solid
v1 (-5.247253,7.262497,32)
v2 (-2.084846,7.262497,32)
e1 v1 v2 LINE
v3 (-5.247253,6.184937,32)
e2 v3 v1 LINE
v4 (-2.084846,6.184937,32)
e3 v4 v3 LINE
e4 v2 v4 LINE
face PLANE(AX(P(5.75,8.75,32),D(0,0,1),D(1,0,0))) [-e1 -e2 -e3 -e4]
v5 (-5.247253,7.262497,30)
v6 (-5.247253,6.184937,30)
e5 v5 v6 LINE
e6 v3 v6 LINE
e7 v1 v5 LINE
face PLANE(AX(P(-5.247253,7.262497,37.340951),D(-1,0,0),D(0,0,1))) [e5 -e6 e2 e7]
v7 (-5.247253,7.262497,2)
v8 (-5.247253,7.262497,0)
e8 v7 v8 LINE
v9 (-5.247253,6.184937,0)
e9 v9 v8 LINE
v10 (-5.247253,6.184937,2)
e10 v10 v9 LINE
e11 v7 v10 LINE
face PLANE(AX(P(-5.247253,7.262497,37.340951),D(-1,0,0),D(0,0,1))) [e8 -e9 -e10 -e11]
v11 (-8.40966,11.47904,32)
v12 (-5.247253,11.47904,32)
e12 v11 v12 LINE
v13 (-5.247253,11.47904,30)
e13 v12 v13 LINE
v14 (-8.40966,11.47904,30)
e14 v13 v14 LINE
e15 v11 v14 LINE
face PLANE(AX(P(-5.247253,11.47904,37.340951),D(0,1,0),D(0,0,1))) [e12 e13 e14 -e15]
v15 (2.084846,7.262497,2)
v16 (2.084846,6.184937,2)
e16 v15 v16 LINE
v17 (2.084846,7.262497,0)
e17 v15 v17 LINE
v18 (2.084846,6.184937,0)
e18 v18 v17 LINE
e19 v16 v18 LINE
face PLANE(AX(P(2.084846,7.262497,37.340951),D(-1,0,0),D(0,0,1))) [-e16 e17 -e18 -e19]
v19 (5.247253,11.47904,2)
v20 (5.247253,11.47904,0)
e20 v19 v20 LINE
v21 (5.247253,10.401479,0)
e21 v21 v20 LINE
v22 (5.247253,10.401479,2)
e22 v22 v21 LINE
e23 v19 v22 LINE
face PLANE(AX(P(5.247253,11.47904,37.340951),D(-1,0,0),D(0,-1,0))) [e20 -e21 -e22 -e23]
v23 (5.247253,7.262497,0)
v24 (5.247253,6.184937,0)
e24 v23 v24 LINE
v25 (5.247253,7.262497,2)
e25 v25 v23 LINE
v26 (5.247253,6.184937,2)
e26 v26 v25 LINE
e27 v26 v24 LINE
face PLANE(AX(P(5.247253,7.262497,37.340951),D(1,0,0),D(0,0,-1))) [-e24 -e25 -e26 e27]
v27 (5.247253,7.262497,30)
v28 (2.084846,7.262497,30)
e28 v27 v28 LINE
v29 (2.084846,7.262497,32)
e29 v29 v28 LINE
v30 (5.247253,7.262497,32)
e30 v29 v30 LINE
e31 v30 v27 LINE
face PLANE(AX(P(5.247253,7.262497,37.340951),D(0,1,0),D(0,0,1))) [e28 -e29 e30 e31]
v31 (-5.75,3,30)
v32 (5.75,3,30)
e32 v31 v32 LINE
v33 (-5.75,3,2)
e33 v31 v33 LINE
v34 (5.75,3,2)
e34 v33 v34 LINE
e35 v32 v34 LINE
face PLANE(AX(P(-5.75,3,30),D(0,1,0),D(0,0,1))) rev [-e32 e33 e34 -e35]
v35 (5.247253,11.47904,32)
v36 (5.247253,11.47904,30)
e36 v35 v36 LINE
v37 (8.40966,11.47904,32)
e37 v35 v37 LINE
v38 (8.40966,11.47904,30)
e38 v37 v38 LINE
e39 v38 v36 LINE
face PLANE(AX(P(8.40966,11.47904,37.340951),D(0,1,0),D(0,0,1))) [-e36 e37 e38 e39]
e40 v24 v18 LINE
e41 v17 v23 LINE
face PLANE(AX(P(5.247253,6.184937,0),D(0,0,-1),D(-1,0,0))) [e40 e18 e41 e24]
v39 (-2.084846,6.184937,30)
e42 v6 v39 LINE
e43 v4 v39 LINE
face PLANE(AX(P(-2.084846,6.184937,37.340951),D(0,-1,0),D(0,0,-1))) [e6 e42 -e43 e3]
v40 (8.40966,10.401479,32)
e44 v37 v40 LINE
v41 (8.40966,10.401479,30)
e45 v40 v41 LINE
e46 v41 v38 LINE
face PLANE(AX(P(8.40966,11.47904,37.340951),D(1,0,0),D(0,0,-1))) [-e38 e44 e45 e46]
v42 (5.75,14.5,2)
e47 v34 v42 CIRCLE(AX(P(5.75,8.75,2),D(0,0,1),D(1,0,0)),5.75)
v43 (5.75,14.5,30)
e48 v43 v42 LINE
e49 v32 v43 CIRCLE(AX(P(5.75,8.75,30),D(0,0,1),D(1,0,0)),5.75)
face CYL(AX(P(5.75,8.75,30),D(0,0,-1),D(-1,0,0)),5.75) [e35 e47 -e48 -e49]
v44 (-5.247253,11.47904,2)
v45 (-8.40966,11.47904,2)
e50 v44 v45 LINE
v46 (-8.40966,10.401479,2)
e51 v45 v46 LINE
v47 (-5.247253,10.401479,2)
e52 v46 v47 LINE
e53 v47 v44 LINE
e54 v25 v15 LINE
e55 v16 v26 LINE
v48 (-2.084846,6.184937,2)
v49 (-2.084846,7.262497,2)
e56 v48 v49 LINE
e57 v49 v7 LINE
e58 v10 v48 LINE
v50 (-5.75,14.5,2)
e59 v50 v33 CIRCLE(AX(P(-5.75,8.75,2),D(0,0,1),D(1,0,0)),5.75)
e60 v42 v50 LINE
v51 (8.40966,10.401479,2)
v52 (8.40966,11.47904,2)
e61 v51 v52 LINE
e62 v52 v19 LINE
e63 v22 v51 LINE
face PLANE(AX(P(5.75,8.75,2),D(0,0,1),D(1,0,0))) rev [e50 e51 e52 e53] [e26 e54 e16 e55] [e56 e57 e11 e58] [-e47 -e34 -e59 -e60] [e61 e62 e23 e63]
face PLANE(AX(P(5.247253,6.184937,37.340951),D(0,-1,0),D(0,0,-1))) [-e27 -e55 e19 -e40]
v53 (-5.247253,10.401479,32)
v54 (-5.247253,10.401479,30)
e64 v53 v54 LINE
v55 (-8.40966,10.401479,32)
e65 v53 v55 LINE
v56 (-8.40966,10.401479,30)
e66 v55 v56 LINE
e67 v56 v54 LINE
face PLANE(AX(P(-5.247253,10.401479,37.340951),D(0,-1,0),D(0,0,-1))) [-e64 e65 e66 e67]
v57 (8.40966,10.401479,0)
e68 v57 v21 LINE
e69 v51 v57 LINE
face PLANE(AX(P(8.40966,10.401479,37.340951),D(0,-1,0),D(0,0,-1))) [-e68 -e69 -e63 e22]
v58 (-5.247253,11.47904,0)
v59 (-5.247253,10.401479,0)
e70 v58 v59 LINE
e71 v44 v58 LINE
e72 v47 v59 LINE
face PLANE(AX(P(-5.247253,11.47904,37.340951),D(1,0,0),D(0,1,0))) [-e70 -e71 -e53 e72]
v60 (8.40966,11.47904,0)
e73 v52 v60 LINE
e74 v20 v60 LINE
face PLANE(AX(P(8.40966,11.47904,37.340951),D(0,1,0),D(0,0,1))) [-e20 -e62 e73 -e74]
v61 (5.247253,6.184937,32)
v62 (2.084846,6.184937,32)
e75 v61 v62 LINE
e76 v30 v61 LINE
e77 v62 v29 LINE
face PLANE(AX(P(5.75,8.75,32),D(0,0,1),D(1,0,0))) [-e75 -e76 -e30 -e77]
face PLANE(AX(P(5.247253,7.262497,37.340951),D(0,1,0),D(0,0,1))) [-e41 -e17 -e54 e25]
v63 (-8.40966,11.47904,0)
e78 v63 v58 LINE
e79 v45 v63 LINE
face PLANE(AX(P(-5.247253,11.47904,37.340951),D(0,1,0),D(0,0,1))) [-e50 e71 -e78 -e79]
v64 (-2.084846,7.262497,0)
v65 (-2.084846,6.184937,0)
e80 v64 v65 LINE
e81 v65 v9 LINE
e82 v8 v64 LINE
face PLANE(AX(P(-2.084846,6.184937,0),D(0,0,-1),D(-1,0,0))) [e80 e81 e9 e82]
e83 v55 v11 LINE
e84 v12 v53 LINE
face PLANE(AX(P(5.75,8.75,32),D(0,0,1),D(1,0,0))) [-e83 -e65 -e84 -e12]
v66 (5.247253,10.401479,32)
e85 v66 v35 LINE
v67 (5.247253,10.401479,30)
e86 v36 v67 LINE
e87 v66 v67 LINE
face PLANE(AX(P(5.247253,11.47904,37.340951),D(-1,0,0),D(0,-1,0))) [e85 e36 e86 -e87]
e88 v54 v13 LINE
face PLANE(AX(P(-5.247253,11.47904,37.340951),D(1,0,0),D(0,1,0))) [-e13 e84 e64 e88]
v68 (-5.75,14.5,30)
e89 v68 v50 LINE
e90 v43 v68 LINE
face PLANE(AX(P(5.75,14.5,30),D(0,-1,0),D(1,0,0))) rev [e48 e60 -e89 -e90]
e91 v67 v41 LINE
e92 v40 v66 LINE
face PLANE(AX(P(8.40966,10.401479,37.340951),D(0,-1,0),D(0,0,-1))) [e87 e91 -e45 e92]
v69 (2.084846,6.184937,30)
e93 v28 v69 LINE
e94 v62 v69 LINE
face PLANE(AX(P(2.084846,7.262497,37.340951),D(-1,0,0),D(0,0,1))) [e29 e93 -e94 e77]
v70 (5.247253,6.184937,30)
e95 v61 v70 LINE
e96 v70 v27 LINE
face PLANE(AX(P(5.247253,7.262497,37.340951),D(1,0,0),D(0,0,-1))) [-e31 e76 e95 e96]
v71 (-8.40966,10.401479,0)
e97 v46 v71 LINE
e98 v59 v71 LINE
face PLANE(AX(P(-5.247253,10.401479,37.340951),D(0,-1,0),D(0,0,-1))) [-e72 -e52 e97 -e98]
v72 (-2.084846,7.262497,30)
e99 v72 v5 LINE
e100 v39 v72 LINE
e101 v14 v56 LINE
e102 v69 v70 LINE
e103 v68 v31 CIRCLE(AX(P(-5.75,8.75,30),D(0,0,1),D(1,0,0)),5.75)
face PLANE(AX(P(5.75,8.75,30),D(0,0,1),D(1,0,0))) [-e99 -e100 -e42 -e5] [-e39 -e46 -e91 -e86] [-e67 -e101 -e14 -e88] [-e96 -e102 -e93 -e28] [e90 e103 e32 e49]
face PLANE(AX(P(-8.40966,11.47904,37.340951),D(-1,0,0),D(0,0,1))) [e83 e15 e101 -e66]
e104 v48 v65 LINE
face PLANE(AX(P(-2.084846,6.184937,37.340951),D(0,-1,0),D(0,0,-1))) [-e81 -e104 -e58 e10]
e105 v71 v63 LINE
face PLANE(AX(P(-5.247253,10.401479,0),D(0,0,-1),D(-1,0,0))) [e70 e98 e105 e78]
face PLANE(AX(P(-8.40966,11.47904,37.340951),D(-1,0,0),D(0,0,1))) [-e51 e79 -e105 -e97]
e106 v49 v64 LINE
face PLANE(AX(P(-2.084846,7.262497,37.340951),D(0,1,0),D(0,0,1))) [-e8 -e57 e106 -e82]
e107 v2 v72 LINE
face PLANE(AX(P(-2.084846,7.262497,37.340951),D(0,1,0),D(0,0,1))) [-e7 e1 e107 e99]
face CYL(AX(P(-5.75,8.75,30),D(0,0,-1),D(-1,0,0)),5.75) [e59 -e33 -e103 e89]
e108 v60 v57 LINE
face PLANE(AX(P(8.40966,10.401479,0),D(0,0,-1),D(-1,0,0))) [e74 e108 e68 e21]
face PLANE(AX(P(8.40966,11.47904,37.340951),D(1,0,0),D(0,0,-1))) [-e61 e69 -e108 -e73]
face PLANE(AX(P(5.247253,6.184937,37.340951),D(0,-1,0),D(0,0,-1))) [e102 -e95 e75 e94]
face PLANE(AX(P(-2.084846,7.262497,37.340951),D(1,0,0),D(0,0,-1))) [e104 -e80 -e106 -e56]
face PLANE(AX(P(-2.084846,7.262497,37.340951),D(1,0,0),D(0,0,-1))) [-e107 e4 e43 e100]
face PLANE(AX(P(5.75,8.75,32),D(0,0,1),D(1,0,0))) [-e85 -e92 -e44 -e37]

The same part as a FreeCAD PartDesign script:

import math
import FreeCAD as App
import Part
import Sketcher


def add_polygon(sketch, points):
    """Adds a closed chain of lines whose ends are joined by coincident constraints."""
    first, n = sketch.GeometryCount, len(points)
    for a, b in zip(points, points[1:] + points[:1]):
        sketch.addGeometry(Part.LineSegment(App.Vector(*a, 0), App.Vector(*b, 0)), False)
    for i in range(n):
        sketch.addConstraint(Sketcher.Constraint("Coincident", first + i, 2, first + (i + 1) % n, 1))

doc = App.newDocument("Part")
body = doc.addObject("PartDesign::Body", "Body")

sketch1 = body.newObject("Sketcher::SketchObject", "Sketch")
sketch1.AttachmentSupport = (doc.getObject("XY_Plane"), [""])
sketch1.MapMode = "FlatFace"
sketch1.AttachmentOffset = App.Placement(App.Vector(0, 0, 2), App.Rotation())
sketch1.addGeometry([
    Part.LineSegment(App.Vector(6, 14, 0), App.Vector(-6, 14, 0)),
    Part.ArcOfCircle(Part.Circle(App.Vector(-6, 9, 0), App.Vector(0, 0, 1), 6), math.radians(90), math.radians(270)),
    Part.LineSegment(App.Vector(-6, 3, 0), App.Vector(6, 3, 0)),
    Part.ArcOfCircle(Part.Circle(App.Vector(6, 9, 0), App.Vector(0, 0, 1), 6), math.radians(-90), math.radians(90)),
], False)
sketch1.addConstraint([
    Sketcher.Constraint("Tangent", 0, 2, 1, 1),
    Sketcher.Constraint("Tangent", 1, 2, 2, 1),
    Sketcher.Constraint("Tangent", 2, 2, 3, 1),
    Sketcher.Constraint("Tangent", 3, 2, 0, 1),
    Sketcher.Constraint("Horizontal", 0),
    Sketcher.Constraint("Horizontal", 2),
    Sketcher.Constraint("Radius", 1, 5.75),
    Sketcher.Constraint("DistanceX", 0, 2, 0, 1, 11.5),
    Sketcher.Constraint("DistanceY", -1, 1, 1, 2, 3.0),
    Sketcher.Constraint("DistanceX", 1, 3, -1, 1, 5.75),
])
pad1 = body.newObject("PartDesign::Pad", "Pad")
pad1.Profile = sketch1
pad1.Length = 28

sketch2 = body.newObject("Sketcher::SketchObject", "Sketch001")
sketch2.AttachmentSupport = (doc.getObject("XY_Plane"), [""])
sketch2.MapMode = "FlatFace"
sketch2.AttachmentOffset = App.Placement(App.Vector(0, 0, 2), App.Rotation())
add_polygon(sketch2, [(8.4, 11.5), (8.4, 10.4), (5.2, 10.4), (5.2, 11.5)])
add_polygon(sketch2, [(5.2, 7.3), (5.2, 6.2), (2.1, 6.2), (2.1, 7.3)])
add_polygon(sketch2, [(-2.1, 7.3), (-2.1, 6.2), (-5.2, 6.2), (-5.2, 7.3)])
add_polygon(sketch2, [(-5.2, 11.5), (-5.2, 10.4), (-8.4, 10.4), (-8.4, 11.5)])
sketch2.addConstraint([
    Sketcher.Constraint("Vertical", 0),
    Sketcher.Constraint("Horizontal", 1),
    Sketcher.Constraint("Vertical", 2),
    Sketcher.Constraint("Horizontal", 3),
    Sketcher.Constraint("Vertical", 4),
    Sketcher.Constraint("Horizontal", 5),
    Sketcher.Constraint("Vertical", 6),
    Sketcher.Constraint("Horizontal", 7),
    Sketcher.Constraint("Vertical", 8),
    Sketcher.Constraint("Horizontal", 9),
    Sketcher.Constraint("Vertical", 10),
    Sketcher.Constraint("Horizontal", 11),
    Sketcher.Constraint("Vertical", 12),
    Sketcher.Constraint("Horizontal", 13),
    Sketcher.Constraint("Vertical", 14),
    Sketcher.Constraint("Horizontal", 15),
    Sketcher.Constraint("Symmetric", 5, 2, 8, 2, -2),
    Sketcher.Constraint("Symmetric", 7, 2, 10, 2, -2),
    Sketcher.Constraint("Symmetric", 1, 2, 12, 2, -2),
    Sketcher.Constraint("Symmetric", 3, 2, 14, 2, -2),
    Sketcher.Constraint("Vertical", 2, 2, 4, 2),
    Sketcher.Constraint("Equal", 3, 5),
    Sketcher.Constraint("Equal", 2, 4),
    Sketcher.Constraint("DistanceY", 0, 2, 0, 1, 1.077561),
    Sketcher.Constraint("DistanceX", 8, 2, 4, 2, 7.332099),
    Sketcher.Constraint("DistanceX", 1, 2, 1, 1, 3.162407),
    Sketcher.Constraint("DistanceY", -1, 1, 0, 2, 10.401479),
    Sketcher.Constraint("DistanceY", 6, 2, 1, 2, 3.138982),
])
pad2 = body.newObject("PartDesign::Pad", "Pad001")
pad2.Profile = sketch2
pad2.Type = "TwoLengths"
pad2.Length = 2
pad2.Length2 = 30
pad2.Reversed = True

doc.recompute()
